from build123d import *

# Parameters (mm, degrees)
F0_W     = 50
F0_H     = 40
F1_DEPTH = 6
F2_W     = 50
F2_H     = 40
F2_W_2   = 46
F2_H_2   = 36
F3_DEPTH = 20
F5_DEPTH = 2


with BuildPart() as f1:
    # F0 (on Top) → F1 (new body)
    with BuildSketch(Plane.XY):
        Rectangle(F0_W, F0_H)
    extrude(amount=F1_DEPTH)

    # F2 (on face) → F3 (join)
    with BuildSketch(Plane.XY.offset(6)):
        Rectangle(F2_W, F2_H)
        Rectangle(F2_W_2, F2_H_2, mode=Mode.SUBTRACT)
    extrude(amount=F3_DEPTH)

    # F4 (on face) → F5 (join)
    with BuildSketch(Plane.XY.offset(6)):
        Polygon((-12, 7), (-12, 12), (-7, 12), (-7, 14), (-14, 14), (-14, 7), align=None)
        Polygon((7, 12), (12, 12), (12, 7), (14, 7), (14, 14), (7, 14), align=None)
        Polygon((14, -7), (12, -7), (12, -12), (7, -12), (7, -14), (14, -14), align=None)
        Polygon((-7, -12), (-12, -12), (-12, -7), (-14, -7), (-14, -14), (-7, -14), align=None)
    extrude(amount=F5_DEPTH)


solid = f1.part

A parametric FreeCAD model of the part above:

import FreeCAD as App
import Part
import Sketcher

doc = App.newDocument("Part")
body = doc.addObject("PartDesign::Body", "Body")

# Sketch on XY plane
sketch1 = body.newObject("Sketcher::SketchObject", "Sketch")
sketch1.AttachmentSupport = (doc.getObject("XY_Plane"), [""])
sketch1.MapMode = "FlatFace"
sketch1.addGeometry(Part.LineSegment(App.Vector(-25, 20, 0), App.Vector(-25, -20, 0)), False)
sketch1.addGeometry(Part.LineSegment(App.Vector(-25, -20, 0), App.Vector(25, -20, 0)), False)
sketch1.addGeometry(Part.LineSegment(App.Vector(25, -20, 0), App.Vector(25, 20, 0)), False)
sketch1.addGeometry(Part.LineSegment(App.Vector(25, 20, 0), App.Vector(-25, 20, 0)), False)
sketch1.addConstraint(Sketcher.Constraint("Coincident", 0, 2, 1, 1))
sketch1.addConstraint(Sketcher.Constraint("Coincident", 1, 2, 2, 1))
sketch1.addConstraint(Sketcher.Constraint("Coincident", 2, 2, 3, 1))
sketch1.addConstraint(Sketcher.Constraint("Coincident", 3, 2, 0, 1))
sketch1.addConstraint(Sketcher.Constraint("Vertical", 0))
sketch1.addConstraint(Sketcher.Constraint("Horizontal", 1))
sketch1.addConstraint(Sketcher.Constraint("Vertical", 2))
sketch1.addConstraint(Sketcher.Constraint("Horizontal", 3))
sketch1.addConstraint(Sketcher.Constraint("Symmetric", 0, 2, 2, 2, -1, 1))
sketch1.addConstraint(Sketcher.Constraint("DistanceX", 1, 1, 1, 2, 50.0))
sketch1.addConstraint(Sketcher.Constraint("DistanceY", 0, 2, 0, 1, 40.0))
pad1 = body.newObject("PartDesign::Pad", "Pad")
pad1.Profile = sketch1
pad1.Length = 6

# Sketch on XY plane
sketch2 = body.newObject("Sketcher::SketchObject", "Sketch001")
sketch2.AttachmentSupport = (doc.getObject("XY_Plane"), [""])
sketch2.MapMode = "FlatFace"
sketch2.AttachmentOffset = App.Placement(App.Vector(0, 0, 6), App.Rotation())
sketch2.addGeometry(Part.LineSegment(App.Vector(-25, 20, 0), App.Vector(-25, -20, 0)), False)
sketch2.addGeometry(Part.LineSegment(App.Vector(-25, -20, 0), App.Vector(25, -20, 0)), False)
sketch2.addGeometry(Part.LineSegment(App.Vector(25, -20, 0), App.Vector(25, 20, 0)), False)
sketch2.addGeometry(Part.LineSegment(App.Vector(25, 20, 0), App.Vector(-25, 20, 0)), False)
sketch2.addGeometry(Part.LineSegment(App.Vector(23, -18, 0), App.Vector(-23, -18, 0)), False)
sketch2.addGeometry(Part.LineSegment(App.Vector(-23, -18, 0), App.Vector(-23, 18, 0)), False)
sketch2.addGeometry(Part.LineSegment(App.Vector(-23, 18, 0), App.Vector(23, 18, 0)), False)
sketch2.addGeometry(Part.LineSegment(App.Vector(23, 18, 0), App.Vector(23, -18, 0)), False)
sketch2.addConstraint(Sketcher.Constraint("Coincident", 0, 2, 1, 1))
sketch2.addConstraint(Sketcher.Constraint("Coincident", 1, 2, 2, 1))
sketch2.addConstraint(Sketcher.Constraint("Coincident", 2, 2, 3, 1))
sketch2.addConstraint(Sketcher.Constraint("Coincident", 3, 2, 0, 1))
sketch2.addConstraint(Sketcher.Constraint("Coincident", 4, 2, 5, 1))
sketch2.addConstraint(Sketcher.Constraint("Coincident", 5, 2, 6, 1))
sketch2.addConstraint(Sketcher.Constraint("Coincident", 6, 2, 7, 1))
sketch2.addConstraint(Sketcher.Constraint("Coincident", 7, 2, 4, 1))
sketch2.addConstraint(Sketcher.Constraint("Vertical", 0))
sketch2.addConstraint(Sketcher.Constraint("Horizontal", 1))
sketch2.addConstraint(Sketcher.Constraint("Vertical", 2))
sketch2.addConstraint(Sketcher.Constraint("Horizontal", 3))
sketch2.addConstraint(Sketcher.Constraint("Horizontal", 4))
sketch2.addConstraint(Sketcher.Constraint("Vertical", 5))
sketch2.addConstraint(Sketcher.Constraint("Horizontal", 6))
sketch2.addConstraint(Sketcher.Constraint("Vertical", 7))
sketch2.addConstraint(Sketcher.Constraint("Symmetric", 0, 2, 2, 2, -1, 1))
sketch2.addConstraint(Sketcher.Constraint("Symmetric", 4, 2, 6, 2, -1, 1))
sketch2.addConstraint(Sketcher.Constraint("DistanceX", 1, 1, 1, 2, 50.0))
sketch2.addConstraint(Sketcher.Constraint("DistanceX", 4, 2, 4, 1, 46.0))
sketch2.addConstraint(Sketcher.Constraint("DistanceY", 0, 2, 0, 1, 40.0))
sketch2.addConstraint(Sketcher.Constraint("DistanceY", 5, 1, 5, 2, 36.0))
pad2 = body.newObject("PartDesign::Pad", "Pad001")
pad2.Profile = sketch2
pad2.Length = 20

# Sketch on XY plane
sketch3 = body.newObject("Sketcher::SketchObject", "Sketch002")
sketch3.AttachmentSupport = (doc.getObject("XY_Plane"), [""])
sketch3.MapMode = "FlatFace"
sketch3.AttachmentOffset = App.Placement(App.Vector(0, 0, 6), App.Rotation())
sketch3.addGeometry(Part.LineSegment(App.Vector(-12, 7, 0), App.Vector(-12, 12, 0)), False)
sketch3.addGeometry(Part.LineSegment(App.Vector(-12, 12, 0), App.Vector(-7, 12, 0)), False)
sketch3.addGeometry(Part.LineSegment(App.Vector(-7, 12, 0), App.Vector(-7, 14, 0)), False)
sketch3.addGeometry(Part.LineSegment(App.Vector(-7, 14, 0), App.Vector(-14, 14, 0)), False)
sketch3.addGeometry(Part.LineSegment(App.Vector(-14, 14, 0), App.Vector(-14, 7, 0)), False)
sketch3.addGeometry(Part.LineSegment(App.Vector(-14, 7, 0), App.Vector(-12, 7, 0)), False)
sketch3.addGeometry(Part.LineSegment(App.Vector(7, 12, 0), App.Vector(12, 12, 0)), False)
sketch3.addGeometry(Part.LineSegment(App.Vector(12, 12, 0), App.Vector(12, 7, 0)), False)
sketch3.addGeometry(Part.LineSegment(App.Vector(12, 7, 0), App.Vector(14, 7, 0)), False)
sketch3.addGeometry(Part.LineSegment(App.Vector(14, 7, 0), App.Vector(14, 14, 0)), False)
sketch3.addGeometry(Part.LineSegment(App.Vector(14, 14, 0), App.Vector(7, 14, 0)), False)
sketch3.addGeometry(Part.LineSegment(App.Vector(7, 14, 0), App.Vector(7, 12, 0)), False)
sketch3.addGeometry(Part.LineSegment(App.Vector(14, -7, 0), App.Vector(12, -7, 0)), False)
sketch3.addGeometry(Part.LineSegment(App.Vector(12, -7, 0), App.Vector(12, -12, 0)), False)
sketch3.addGeometry(Part.LineSegment(App.Vector(12, -12, 0), App.Vector(7, -12, 0)), False)
sketch3.addGeometry(Part.LineSegment(App.Vector(7, -12, 0), App.Vector(7, -14, 0)), False)
sketch3.addGeometry(Part.LineSegment(App.Vector(7, -14, 0), App.Vector(14, -14, 0)), False)
sketch3.addGeometry(Part.LineSegment(App.Vector(14, -14, 0), App.Vector(14, -7, 0)), False)
sketch3.addGeometry(Part.LineSegment(App.Vector(-7, -12, 0), App.Vector(-12, -12, 0)), False)
sketch3.addGeometry(Part.LineSegment(App.Vector(-12, -12, 0), App.Vector(-12, -7, 0)), False)
sketch3.addGeometry(Part.LineSegment(App.Vector(-12, -7, 0), App.Vector(-14, -7, 0)), False)
sketch3.addGeometry(Part.LineSegment(App.Vector(-14, -7, 0), App.Vector(-14, -14, 0)), False)
sketch3.addGeometry(Part.LineSegment(App.Vector(-14, -14, 0), App.Vector(-7, -14, 0)), False)
sketch3.addGeometry(Part.LineSegment(App.Vector(-7, -14, 0), App.Vector(-7, -12, 0)), False)
sketch3.addConstraint(Sketcher.Constraint("Coincident", 0, 2, 1, 1))
sketch3.addConstraint(Sketcher.Constraint("Coincident", 1, 2, 2, 1))
sketch3.addConstraint(Sketcher.Constraint("Coincident", 2, 2, 3, 1))
sketch3.addConstraint(Sketcher.Constraint("Coincident", 3, 2, 4, 1))
sketch3.addConstraint(Sketcher.Constraint("Coincident", 4, 2, 5, 1))
sketch3.addConstraint(Sketcher.Constraint("Coincident", 5, 2, 0, 1))
sketch3.addConstraint(Sketcher.Constraint("Coincident", 6, 2, 7, 1))
sketch3.addConstraint(Sketcher.Constraint("Coincident", 7, 2, 8, 1))
sketch3.addConstraint(Sketcher.Constraint("Coincident", 8, 2, 9, 1))
sketch3.addConstraint(Sketcher.Constraint("Coincident", 9, 2, 10, 1))
sketch3.addConstraint(Sketcher.Constraint("Coincident", 10, 2, 11, 1))
sketch3.addConstraint(Sketcher.Constraint("Coincident", 11, 2, 6, 1))
sketch3.addConstraint(Sketcher.Constraint("Coincident", 12, 2, 13, 1))
sketch3.addConstraint(Sketcher.Constraint("Coincident", 13, 2, 14, 1))
sketch3.addConstraint(Sketcher.Constraint("Coincident", 14, 2, 15, 1))
sketch3.addConstraint(Sketcher.Constraint("Coincident", 15, 2, 16, 1))
sketch3.addConstraint(Sketcher.Constraint("Coincident", 16, 2, 17, 1))
sketch3.addConstraint(Sketcher.Constraint("Coincident", 17, 2, 12, 1))
sketch3.addConstraint(Sketcher.Constraint("Coincident", 18, 2, 19, 1))
sketch3.addConstraint(Sketcher.Constraint("Coincident", 19, 2, 20, 1))
sketch3.addConstraint(Sketcher.Constraint("Coincident", 20, 2, 21, 1))
sketch3.addConstraint(Sketcher.Constraint("Coincident", 21, 2, 22, 1))
sketch3.addConstraint(Sketcher.Constraint("Coincident", 22, 2, 23, 1))
sketch3.addConstraint(Sketcher.Constraint("Coincident", 23, 2, 18, 1))
sketch3.addConstraint(Sketcher.Constraint("Vertical", 0))
sketch3.addConstraint(Sketcher.Constraint("Horizontal", 1))
sketch3.addConstraint(Sketcher.Constraint("Vertical", 2))
sketch3.addConstraint(Sketcher.Constraint("Horizontal", 3))
sketch3.addConstraint(Sketcher.Constraint("Vertical", 4))
sketch3.addConstraint(Sketcher.Constraint("Horizontal", 5))
sketch3.addConstraint(Sketcher.Constraint("Horizontal", 6))
sketch3.addConstraint(Sketcher.Constraint("Vertical", 7))
sketch3.addConstraint(Sketcher.Constraint("Horizontal", 8))
sketch3.addConstraint(Sketcher.Constraint("Vertical", 9))
sketch3.addConstraint(Sketcher.Constraint("Horizontal", 10))
sketch3.addConstraint(Sketcher.Constraint("Vertical", 11))
sketch3.addConstraint(Sketcher.Constraint("Horizontal", 12))
sketch3.addConstraint(Sketcher.Constraint("Vertical", 13))
sketch3.addConstraint(Sketcher.Constraint("Horizontal", 14))
sketch3.addConstraint(Sketcher.Constraint("Vertical", 15))
sketch3.addConstraint(Sketcher.Constraint("Horizontal", 16))
sketch3.addConstraint(Sketcher.Constraint("Vertical", 17))
sketch3.addConstraint(Sketcher.Constraint("Horizontal", 18))
sketch3.addConstraint(Sketcher.Constraint("Vertical", 19))
sketch3.addConstraint(Sketcher.Constraint("Horizontal", 20))
sketch3.addConstraint(Sketcher.Constraint("Vertical", 21))
sketch3.addConstraint(Sketcher.Constraint("Horizontal", 22))
sketch3.addConstraint(Sketcher.Constraint("Vertical", 23))
sketch3.addConstraint(Sketcher.Constraint("Symmetric", 5, 2, 12, 2, -1, 1))
sketch3.addConstraint(Sketcher.Constraint("Symmetric", 1, 2, 14, 2, -1, 1))
sketch3.addConstraint(Sketcher.Constraint("Symmetric", 3, 2, 16, 2, -1, 1))
sketch3.addConstraint(Sketcher.Constraint("Symmetric", 6, 2, 18, 2, -1, 1))
sketch3.addConstraint(Sketcher.Constraint("Symmetric", 8, 2, 20, 2, -1, 1))
sketch3.addConstraint(Sketcher.Constraint("Symmetric", 10, 2, 22, 2, -1, 1))
sketch3.addConstraint(Sketcher.Constraint("Symmetric", 0, 2, 6, 2, -2))
sketch3.addConstraint(Sketcher.Constraint("Symmetric", 4, 2, 8, 2, -2))
sketch3.addConstraint(Sketcher.Constraint("Symmetric", 2, 2, 10, 2, -2))
sketch3.addConstraint(Sketcher.Constraint("Equal", 18, 0))
sketch3.addConstraint(Sketcher.Constraint("Equal", 20, 2))
sketch3.addConstraint(Sketcher.Constraint("DistanceX", 1, 1, 1, 2, 5.0))
sketch3.addConstraint(Sketcher.Constraint("DistanceX", 3, 2, 3, 1, 7.0))
sketch3.addConstraint(Sketcher.Constraint("DistanceX", 0, 2, -1, 1, 12.0))
sketch3.addConstraint(Sketcher.Constraint("DistanceY", -1, 1, 0, 2, 12.0))
pad3 = body.newObject("PartDesign::Pad", "Pad002")
pad3.Profile = sketch3
pad3.Length = 2

doc.recompute()
